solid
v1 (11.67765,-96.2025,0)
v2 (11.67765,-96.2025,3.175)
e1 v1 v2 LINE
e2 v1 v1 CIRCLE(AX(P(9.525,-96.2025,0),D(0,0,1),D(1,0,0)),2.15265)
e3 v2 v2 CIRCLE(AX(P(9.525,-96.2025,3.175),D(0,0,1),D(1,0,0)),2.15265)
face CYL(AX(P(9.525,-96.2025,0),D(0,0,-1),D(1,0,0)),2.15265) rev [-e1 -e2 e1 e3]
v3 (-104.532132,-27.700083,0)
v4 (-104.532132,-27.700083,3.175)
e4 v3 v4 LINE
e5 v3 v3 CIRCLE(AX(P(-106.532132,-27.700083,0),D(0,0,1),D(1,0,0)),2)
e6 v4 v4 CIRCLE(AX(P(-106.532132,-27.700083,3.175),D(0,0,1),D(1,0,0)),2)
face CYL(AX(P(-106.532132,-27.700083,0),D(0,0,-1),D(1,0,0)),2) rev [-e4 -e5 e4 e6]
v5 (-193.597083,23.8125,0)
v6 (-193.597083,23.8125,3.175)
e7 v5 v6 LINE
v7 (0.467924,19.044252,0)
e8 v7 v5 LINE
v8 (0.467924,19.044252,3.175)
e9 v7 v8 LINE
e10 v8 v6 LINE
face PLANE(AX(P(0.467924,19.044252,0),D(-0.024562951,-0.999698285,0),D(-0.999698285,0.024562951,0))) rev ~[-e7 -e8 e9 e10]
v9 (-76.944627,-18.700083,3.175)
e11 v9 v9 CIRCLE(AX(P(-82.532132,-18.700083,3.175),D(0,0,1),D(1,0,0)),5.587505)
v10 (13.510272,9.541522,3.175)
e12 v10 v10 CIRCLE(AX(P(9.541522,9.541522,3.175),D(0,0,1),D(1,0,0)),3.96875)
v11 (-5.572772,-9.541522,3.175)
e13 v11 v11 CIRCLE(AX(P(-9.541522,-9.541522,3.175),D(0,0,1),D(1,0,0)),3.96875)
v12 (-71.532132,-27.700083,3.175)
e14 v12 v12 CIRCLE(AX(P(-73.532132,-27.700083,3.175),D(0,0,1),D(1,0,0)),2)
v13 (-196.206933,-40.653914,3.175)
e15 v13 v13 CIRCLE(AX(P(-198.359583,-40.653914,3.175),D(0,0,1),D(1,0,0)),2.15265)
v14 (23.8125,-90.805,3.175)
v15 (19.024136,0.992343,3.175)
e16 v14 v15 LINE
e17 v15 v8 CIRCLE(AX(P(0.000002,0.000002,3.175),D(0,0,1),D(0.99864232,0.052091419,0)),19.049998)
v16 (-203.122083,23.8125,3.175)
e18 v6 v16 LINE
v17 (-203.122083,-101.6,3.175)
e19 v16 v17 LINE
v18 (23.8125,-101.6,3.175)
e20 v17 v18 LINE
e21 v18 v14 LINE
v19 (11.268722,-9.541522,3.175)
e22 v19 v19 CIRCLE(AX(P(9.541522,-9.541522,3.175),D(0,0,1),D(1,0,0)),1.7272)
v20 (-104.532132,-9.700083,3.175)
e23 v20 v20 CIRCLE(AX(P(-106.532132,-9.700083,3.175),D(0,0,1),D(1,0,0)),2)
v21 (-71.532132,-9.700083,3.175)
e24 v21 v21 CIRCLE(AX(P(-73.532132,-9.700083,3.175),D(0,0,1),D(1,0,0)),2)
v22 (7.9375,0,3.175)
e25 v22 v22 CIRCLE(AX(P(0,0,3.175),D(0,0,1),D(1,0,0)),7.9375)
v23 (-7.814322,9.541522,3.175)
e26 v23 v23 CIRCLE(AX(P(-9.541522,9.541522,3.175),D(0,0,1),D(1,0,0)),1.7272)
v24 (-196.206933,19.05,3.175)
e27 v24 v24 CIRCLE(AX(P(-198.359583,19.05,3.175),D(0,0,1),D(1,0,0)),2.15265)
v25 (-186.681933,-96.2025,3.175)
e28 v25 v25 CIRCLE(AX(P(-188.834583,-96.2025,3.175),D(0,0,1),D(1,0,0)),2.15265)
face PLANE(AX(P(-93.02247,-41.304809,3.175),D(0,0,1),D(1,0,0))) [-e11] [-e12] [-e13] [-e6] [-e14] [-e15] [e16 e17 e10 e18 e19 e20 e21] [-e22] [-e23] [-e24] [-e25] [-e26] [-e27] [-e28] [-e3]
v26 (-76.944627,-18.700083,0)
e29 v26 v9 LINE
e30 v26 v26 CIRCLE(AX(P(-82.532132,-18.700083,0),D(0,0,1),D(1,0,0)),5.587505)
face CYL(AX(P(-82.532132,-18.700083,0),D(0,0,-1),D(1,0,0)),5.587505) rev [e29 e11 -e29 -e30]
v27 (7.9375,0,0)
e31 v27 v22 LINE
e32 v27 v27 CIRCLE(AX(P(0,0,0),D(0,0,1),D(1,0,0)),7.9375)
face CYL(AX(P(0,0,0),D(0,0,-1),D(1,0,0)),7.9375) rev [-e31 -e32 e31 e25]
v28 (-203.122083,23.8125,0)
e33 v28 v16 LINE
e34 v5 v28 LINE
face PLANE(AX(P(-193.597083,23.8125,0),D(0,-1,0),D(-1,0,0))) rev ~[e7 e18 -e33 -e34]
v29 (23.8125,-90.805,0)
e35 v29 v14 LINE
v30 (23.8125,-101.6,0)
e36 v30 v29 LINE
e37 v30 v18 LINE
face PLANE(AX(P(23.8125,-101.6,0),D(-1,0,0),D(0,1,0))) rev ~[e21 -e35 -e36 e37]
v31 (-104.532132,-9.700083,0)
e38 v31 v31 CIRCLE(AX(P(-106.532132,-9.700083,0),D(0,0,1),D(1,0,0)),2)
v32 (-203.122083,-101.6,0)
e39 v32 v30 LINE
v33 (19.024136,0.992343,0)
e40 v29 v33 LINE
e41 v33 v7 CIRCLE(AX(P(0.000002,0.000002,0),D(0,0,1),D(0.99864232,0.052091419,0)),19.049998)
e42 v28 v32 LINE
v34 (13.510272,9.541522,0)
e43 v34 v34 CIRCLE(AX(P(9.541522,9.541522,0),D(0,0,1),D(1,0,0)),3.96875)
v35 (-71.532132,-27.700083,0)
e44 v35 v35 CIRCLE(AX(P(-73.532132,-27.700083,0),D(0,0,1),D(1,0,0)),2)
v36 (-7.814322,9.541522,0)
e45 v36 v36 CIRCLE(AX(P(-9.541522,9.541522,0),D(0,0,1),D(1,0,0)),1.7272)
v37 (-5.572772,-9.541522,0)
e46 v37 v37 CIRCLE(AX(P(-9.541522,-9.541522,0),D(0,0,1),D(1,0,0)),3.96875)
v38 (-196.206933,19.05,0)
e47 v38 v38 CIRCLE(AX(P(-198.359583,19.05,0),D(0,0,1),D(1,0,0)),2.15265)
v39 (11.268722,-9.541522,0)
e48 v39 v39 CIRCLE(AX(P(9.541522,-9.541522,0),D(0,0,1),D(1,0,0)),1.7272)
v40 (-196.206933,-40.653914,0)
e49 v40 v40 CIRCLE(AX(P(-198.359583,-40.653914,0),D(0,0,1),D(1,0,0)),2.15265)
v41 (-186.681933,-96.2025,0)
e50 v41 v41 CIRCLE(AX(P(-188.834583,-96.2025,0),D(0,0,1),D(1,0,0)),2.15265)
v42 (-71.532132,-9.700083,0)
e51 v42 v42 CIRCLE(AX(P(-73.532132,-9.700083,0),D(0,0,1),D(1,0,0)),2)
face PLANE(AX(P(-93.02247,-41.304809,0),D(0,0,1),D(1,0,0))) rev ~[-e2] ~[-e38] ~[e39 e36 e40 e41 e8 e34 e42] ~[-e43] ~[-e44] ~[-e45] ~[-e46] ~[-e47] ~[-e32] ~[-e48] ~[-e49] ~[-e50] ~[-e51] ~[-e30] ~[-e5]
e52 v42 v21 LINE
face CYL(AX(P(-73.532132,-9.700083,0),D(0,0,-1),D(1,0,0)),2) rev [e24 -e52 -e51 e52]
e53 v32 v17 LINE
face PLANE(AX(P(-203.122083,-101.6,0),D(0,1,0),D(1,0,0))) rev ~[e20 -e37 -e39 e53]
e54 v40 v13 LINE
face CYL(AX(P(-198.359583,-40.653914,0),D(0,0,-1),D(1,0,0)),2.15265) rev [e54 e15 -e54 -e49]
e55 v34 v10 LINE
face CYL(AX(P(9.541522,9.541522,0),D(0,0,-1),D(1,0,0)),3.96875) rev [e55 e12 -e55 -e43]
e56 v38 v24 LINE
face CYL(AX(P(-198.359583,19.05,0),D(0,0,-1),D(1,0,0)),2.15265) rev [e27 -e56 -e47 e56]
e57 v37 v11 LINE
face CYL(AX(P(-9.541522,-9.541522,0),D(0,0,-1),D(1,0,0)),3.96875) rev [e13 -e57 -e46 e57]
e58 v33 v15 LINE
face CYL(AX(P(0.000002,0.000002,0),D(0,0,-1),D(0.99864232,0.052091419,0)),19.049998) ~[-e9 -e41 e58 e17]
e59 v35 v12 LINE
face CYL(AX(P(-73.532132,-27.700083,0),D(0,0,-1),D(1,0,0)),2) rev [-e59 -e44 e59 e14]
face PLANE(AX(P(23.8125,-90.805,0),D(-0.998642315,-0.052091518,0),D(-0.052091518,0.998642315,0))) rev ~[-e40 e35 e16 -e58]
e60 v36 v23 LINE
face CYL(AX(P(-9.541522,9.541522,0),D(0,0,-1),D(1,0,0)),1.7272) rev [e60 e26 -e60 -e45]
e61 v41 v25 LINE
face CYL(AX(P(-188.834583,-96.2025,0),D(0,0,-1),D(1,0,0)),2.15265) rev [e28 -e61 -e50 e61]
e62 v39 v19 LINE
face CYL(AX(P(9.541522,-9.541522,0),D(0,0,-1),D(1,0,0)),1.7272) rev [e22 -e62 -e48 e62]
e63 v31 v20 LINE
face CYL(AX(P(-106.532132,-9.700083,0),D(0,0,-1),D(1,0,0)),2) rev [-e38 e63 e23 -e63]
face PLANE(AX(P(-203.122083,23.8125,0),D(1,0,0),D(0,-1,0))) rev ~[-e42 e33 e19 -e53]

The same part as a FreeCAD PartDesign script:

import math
import FreeCAD as App
import Part
import Sketcher

V = App.Vector
Q = App.Units.Quantity

doc = App.newDocument("Part")
body = doc.addObject("PartDesign::Body", "Body")

# Sketch on XY plane
sketch1 = doc.addObject("Sketcher::SketchObject", "Sketch")
body.addObject(sketch1)
sketch1.AttachmentSupport = (doc.XY_Plane, [""])
sketch1.MapMode = "FlatFace"
sketch1.addGeometry([
    Part.LineSegment(V(0.467924, 19.044252, 0), V(-193.597083, 23.8125, 0)),  # 0
    Part.LineSegment(V(-193.597083, 23.8125, 0), V(-203.122083, 23.8125, 0)),  # 1
    Part.LineSegment(V(-203.122083, 23.8125, 0), V(-203.122083, -101.6, 0)),  # 2
    Part.LineSegment(V(-203.122083, -101.6, 0), V(23.8125, -101.6, 0)),  # 3
    Part.LineSegment(V(23.8125, -101.6, 0), V(23.8125, -90.805, 0)),  # 4
    Part.LineSegment(V(23.8125, -90.805, 0), V(19.024136, 0.992343, 0)),  # 5
    Part.ArcOfCircle(Part.Circle(V(0.000002, 0.000002, 0), V(0, 0, 1), 19.049998), math.radians(2.98597), math.radians(88.592511)),  # 6
    Part.Circle(V(-188.834583, -96.2025, 0), V(0, 0, 1), 2.15265),  # 7
    Part.Circle(V(-198.359583, -40.653914, 0), V(0, 0, 1), 2.15265),  # 8
    Part.Circle(V(9.525, -96.2025, 0), V(0, 0, 1), 2.15265),  # 9
    Part.Circle(V(-106.532132, -27.700083, 0), V(0, 0, 1), 2),  # 10
    Part.Circle(V(-106.532132, -9.700083, 0), V(0, 0, 1), 2),  # 11
    Part.Circle(V(-198.359583, 19.05, 0), V(0, 0, 1), 2.15265),  # 12
    Part.Circle(V(-73.532132, -27.700083, 0), V(0, 0, 1), 2),  # 13
    Part.Circle(V(-82.532132, -18.700083, 0), V(0, 0, 1), 5.587505),  # 14
    Part.Circle(V(-73.532132, -9.700083, 0), V(0, 0, 1), 2),  # 15
    Part.Circle(V(-9.541522, -9.541522, 0), V(0, 0, 1), 3.96875),  # 16
    Part.Circle(V(9.541522, -9.541522, 0), V(0, 0, 1), 1.7272),  # 17
    Part.Circle(V(0, 0, 0), V(0, 0, 1), 7.9375),  # 18
    Part.Circle(V(-9.541522, 9.541522, 0), V(0, 0, 1), 1.7272),  # 19
    Part.Circle(V(9.541522, 9.541522, 0), V(0, 0, 1), 3.96875),  # 20
], False)
sketch1.addConstraint([
    Sketcher.Constraint("Coincident", 0, 2, 1, 1),
    Sketcher.Constraint("Coincident", 1, 2, 2, 1),
    Sketcher.Constraint("Coincident", 2, 2, 3, 1),
    Sketcher.Constraint("Coincident", 3, 2, 4, 1),
    Sketcher.Constraint("Coincident", 4, 2, 5, 1),
    Sketcher.Constraint("Tangent", 5, 2, 6, 1),
    Sketcher.Constraint("Tangent", 6, 2, 0, 1),
    Sketcher.Constraint("Horizontal", 1),
    Sketcher.Constraint("Vertical", 2),
    Sketcher.Constraint("Horizontal", 3),
    Sketcher.Constraint("Vertical", 4),
    Sketcher.Constraint("Coincident", 6, 3, -1, 1),
    Sketcher.Constraint("Coincident", 18, 3, -1, 1),
    Sketcher.Constraint("Equal", 7, 8),
    Sketcher.Constraint("Equal", 8, 9),
    Sketcher.Constraint("Equal", 10, 11),
    Sketcher.Constraint("Equal", 9, 12),
    Sketcher.Constraint("Equal", 11, 13),
    Sketcher.Constraint("Equal", 13, 15),
    Sketcher.Constraint("Equal", 17, 19),
    Sketcher.Constraint("Equal", 16, 20),
    Sketcher.Constraint("Symmetric", 17, 3, 19, 3, -1, 1),
    Sketcher.Constraint("Symmetric", 16, 3, 20, 3, -1, 1),
    Sketcher.Constraint("Symmetric", 16, 3, 17, 3, -2),
    Sketcher.Constraint("Horizontal", 7, 3, 9, 3),
    Sketcher.Constraint("Horizontal", 10, 3, 13, 3),
    Sketcher.Constraint("Horizontal", 11, 3, 15, 3),
    Sketcher.Constraint("Vertical", 10, 3, 11, 3),
    Sketcher.Constraint("Vertical", 8, 3, 12, 3),
    Sketcher.Constraint("Vertical", 13, 3, 15, 3),
    Sketcher.Constraint("Radius", 6, Q("0.7499999 in")),
    Sketcher.Constraint("Diameter", 16, Q("0.3125 in")),
    Sketcher.Constraint("Diameter", 17, Q("0.136 in")),
    Sketcher.Constraint("Diameter", 18, Q("0.625 in")),
    Sketcher.Constraint("DistanceY", 2, 2, -1, 1, Q("4 in")),
    Sketcher.Constraint("Diameter", 7, Q("0.1695 in")),
    Sketcher.Constraint("Diameter", 10, 4.0),
    Sketcher.Constraint("DistanceX", 1, 2, 1, 1, Q("0.375 in")),
    Sketcher.Constraint("DistanceY", 2, 2, 2, 1, Q("4.9375 in")),
    Sketcher.Constraint("DistanceY", 4, 1, 4, 2, Q("0.425 in")),
    Sketcher.Constraint("DistanceY", -1, 1, 12, 3, Q("0.75 in")),
    Sketcher.Constraint("Diameter", 14, 11.17501),
    Sketcher.Constraint("DistanceX", -1, 1, 9, 3, Q("0.375 in")),
    Sketcher.Constraint("DistanceX", -1, 1, 3, 2, Q("0.9375 in")),
    Sketcher.Constraint("DistanceX", 8, 3, 7, 3, Q("0.375 in")),
    Sketcher.Constraint("DistanceX", 12, 3, 0, 2, Q("0.1875 in")),
    Sketcher.Constraint("DistanceY", 7, 3, -1, 1, Q("3.7875 in")),
    Sketcher.Constraint("DistanceY", 10, 3, 11, 3, 18.0),
    Sketcher.Constraint("DistanceX", 10, 3, 13, 3, 33.0),
    Sketcher.Constraint("DistanceX", 14, 3, 13, 3, 9.0),
    Sketcher.Constraint("DistanceY", 13, 3, 14, 3, 9.0),
    Sketcher.Constraint("DistanceX", 6, 2, 20, 3, 9.073598),
    Sketcher.Constraint("DistanceX", 3, 1, 3, 2, 226.934583),
    Sketcher.Constraint("DistanceX", 8, 3, 10, 3, 91.827451),
    Sketcher.Constraint("DistanceY", 8, 3, 10, 3, 12.953831),
    Sketcher.Constraint("DistanceY", 15, 3, 16, 3, 0.158561),
    Sketcher.Constraint("DistanceY", 9, 3, 16, 3, 86.660978),
])
pad1 = doc.addObject("PartDesign::Pad", "Pad")
body.addObject(pad1)
pad1.Profile = sketch1
pad1.Length = Q("0.125 in")

doc.recompute()
